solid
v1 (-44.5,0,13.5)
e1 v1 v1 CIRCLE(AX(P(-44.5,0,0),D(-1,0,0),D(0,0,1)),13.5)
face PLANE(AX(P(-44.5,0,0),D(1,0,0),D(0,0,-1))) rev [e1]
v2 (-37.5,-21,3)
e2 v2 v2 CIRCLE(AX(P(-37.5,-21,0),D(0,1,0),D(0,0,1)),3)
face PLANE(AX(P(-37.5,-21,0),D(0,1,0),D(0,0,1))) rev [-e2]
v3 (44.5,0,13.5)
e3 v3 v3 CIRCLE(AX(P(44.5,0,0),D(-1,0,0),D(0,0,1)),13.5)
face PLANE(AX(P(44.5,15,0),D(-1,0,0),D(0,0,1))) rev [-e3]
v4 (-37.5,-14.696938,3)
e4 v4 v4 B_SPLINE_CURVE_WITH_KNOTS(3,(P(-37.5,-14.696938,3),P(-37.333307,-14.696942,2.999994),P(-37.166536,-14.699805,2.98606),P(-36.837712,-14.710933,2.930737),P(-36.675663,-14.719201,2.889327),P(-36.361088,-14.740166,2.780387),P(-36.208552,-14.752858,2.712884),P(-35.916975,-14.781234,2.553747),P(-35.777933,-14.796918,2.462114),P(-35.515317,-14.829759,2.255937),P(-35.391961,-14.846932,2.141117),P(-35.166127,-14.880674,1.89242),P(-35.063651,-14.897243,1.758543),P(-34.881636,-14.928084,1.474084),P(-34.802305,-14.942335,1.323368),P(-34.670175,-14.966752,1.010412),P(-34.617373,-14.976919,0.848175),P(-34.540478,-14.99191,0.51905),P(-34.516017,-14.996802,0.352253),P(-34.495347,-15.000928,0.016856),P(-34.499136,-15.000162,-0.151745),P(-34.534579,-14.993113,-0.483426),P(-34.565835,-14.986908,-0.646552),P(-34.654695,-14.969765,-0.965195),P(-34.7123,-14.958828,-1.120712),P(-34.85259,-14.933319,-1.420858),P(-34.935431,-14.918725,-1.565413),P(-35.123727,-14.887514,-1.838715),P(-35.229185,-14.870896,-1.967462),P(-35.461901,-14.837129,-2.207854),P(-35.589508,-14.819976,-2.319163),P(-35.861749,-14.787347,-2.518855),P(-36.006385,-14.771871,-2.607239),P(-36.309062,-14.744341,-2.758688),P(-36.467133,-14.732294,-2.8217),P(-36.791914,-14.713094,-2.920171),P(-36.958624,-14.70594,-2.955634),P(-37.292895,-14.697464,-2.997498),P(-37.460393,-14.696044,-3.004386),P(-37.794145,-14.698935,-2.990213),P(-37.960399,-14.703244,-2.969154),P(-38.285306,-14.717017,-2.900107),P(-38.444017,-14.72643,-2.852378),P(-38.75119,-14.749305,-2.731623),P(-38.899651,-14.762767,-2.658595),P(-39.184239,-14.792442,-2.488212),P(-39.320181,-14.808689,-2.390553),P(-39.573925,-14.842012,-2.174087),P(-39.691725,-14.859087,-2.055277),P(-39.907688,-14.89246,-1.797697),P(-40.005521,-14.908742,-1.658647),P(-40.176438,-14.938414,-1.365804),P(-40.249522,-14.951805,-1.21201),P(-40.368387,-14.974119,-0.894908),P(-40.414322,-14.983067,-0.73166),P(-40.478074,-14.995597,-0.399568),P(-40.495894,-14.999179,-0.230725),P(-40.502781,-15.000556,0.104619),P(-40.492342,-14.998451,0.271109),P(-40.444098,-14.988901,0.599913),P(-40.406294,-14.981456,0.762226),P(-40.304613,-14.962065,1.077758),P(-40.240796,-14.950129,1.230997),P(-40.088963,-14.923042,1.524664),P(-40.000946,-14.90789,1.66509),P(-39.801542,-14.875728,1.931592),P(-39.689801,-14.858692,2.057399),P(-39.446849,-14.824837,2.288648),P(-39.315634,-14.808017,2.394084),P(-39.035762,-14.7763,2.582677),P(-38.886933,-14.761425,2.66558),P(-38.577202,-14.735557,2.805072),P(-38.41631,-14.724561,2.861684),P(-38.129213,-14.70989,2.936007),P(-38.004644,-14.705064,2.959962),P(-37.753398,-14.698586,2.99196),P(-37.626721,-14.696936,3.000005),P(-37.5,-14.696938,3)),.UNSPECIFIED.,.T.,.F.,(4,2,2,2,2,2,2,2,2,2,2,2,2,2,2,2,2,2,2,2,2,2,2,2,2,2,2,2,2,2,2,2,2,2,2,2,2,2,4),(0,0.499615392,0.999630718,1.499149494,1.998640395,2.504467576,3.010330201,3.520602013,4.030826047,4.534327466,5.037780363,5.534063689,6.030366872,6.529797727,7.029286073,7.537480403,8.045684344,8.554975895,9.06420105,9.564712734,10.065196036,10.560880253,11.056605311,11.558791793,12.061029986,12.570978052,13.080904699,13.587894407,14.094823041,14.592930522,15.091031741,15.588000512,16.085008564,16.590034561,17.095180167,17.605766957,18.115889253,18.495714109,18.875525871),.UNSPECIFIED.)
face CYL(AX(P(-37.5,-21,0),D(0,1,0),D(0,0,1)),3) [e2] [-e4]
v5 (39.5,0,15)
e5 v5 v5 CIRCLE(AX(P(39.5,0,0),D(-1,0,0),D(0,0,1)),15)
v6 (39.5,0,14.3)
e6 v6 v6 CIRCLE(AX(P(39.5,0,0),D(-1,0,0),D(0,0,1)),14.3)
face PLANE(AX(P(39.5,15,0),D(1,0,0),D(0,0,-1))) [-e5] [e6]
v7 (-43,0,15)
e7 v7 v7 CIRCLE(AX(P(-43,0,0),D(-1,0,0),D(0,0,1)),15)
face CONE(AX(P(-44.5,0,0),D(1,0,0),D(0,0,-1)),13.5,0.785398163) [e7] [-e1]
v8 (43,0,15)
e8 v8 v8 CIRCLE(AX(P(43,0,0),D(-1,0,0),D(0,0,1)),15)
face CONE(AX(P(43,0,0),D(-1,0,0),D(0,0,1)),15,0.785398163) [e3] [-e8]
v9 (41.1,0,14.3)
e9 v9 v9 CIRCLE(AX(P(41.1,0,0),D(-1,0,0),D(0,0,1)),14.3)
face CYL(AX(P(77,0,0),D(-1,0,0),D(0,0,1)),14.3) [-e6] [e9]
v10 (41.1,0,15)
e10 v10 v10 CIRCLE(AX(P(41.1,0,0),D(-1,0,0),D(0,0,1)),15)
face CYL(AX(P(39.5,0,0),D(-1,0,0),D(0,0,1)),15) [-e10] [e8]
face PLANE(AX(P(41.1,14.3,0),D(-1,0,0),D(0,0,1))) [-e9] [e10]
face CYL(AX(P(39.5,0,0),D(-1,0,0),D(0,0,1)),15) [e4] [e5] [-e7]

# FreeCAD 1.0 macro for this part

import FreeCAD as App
import Part
import Sketcher
Q = App.Units.Quantity


def add_polygon(sketch, points):
    """Adds a closed chain of lines whose ends are joined by coincident constraints."""
    first, n = sketch.GeometryCount, len(points)
    for a, b in zip(points, points[1:] + points[:1]):
        sketch.addGeometry(Part.LineSegment(App.Vector(*a, 0), App.Vector(*b, 0)), False)
    for i in range(n):
        sketch.addConstraint(Sketcher.Constraint("Coincident", first + i, 2, first + (i + 1) % n, 1))

doc = App.newDocument("Part")
body = doc.addObject("PartDesign::Body", "Body")

# Sketch on XY plane
sketch1 = doc.addObject("Sketcher::SketchObject", "Sketch")
body.addObject(sketch1)
sketch1.AttachmentSupport = (doc.XY_Plane, [""])
sketch1.MapMode = "FlatFace"
add_polygon(sketch1, [(-44, 15), (-44, 0), (40, 0), (40, 15)])  # lines 0-3
sketch1.addConstraint([
    Sketcher.Constraint("Vertical", 0),
    Sketcher.Constraint("Horizontal", 1),
    Sketcher.Constraint("Vertical", 2),
    Sketcher.Constraint("Horizontal", 3),
    Sketcher.Constraint("PointOnObject", 0, 2, -1),
    Sketcher.Constraint("DistanceX", 1, 1, 1, 2, Q("84 mm")),
    Sketcher.Constraint("DistanceY", 0, 2, 0, 1, Q("15 mm")),
    Sketcher.Constraint("DistanceX", 0, 2, -1, 1, Q("44.5 mm")),
])
revolution = doc.addObject("PartDesign::Revolution", "Revolution")
body.addObject(revolution)
revolution.Profile = sketch1
revolution.ReferenceAxis = (sketch1, ["H_Axis"])
revolution.Angle = 360

# Sketch on XY plane
sketch2 = doc.addObject("Sketcher::SketchObject", "Sketch001")
body.addObject(sketch2)
sketch2.AttachmentSupport = (doc.XY_Plane, [""])
sketch2.MapMode = "FlatFace"
add_polygon(sketch2, [(-44.5, 13.5), (-43, 15), (-44.5, 15)])  # lines 0-2
sketch2.addConstraint([
    Sketcher.Constraint("Horizontal", 1),
    Sketcher.Constraint("Vertical", 2),
    Sketcher.Constraint("Equal", 1, 2),
    Sketcher.Constraint("DistanceX", 1, 2, 1, 1, Q("1.5 mm")),
    Sketcher.Constraint("DistanceX", 0, 2, -1, 1, Q("43 mm")),
    Sketcher.Constraint("DistanceY", -1, 1, 0, 2, Q("15 mm")),
])
groove = doc.addObject("PartDesign::Groove", "Groove")
body.addObject(groove)
groove.Profile = sketch2
groove.ReferenceAxis = (sketch2, ["H_Axis"])
groove.Angle = 360

# Sketch on XZ plane
sketch3 = doc.addObject("Sketcher::SketchObject", "Sketch002")
body.addObject(sketch3)
sketch3.AttachmentSupport = (doc.XZ_Plane, [""])
sketch3.MapMode = "FlatFace"
sketch3.addGeometry(Part.Circle(App.Vector(-37.5, 0, 0), App.Vector(0, 0, 1), 3), False)
sketch3.addConstraint([
    Sketcher.Constraint("PointOnObject", 0, 3, -1),
    Sketcher.Constraint("Diameter", 0, Q("6 mm")),
    Sketcher.Constraint("DistanceX", 0, 3, -1, 1, Q("37.5 mm")),
])
pad1 = doc.addObject("PartDesign::Pad", "Pad")
body.addObject(pad1)
pad1.Profile = sketch3
pad1.Length = 21

# Sketch on XY plane
sketch4 = doc.addObject("Sketcher::SketchObject", "Sketch003")
body.addObject(sketch4)
sketch4.AttachmentSupport = (doc.XY_Plane, [""])
sketch4.MapMode = "FlatFace"
add_polygon(sketch4, [(40, 15), (40, 0), (44, 0), (44, 15)])  # lines 0-3
sketch4.addConstraint([
    Sketcher.Constraint("Vertical", 0),
    Sketcher.Constraint("Horizontal", 1),
    Sketcher.Constraint("Vertical", 2),
    Sketcher.Constraint("Horizontal", 3),
    Sketcher.Constraint("PointOnObject", 0, 2, -1),
    Sketcher.Constraint("DistanceX", 1, 1, 1, 2, Q("5 mm")),
    Sketcher.Constraint("DistanceY", 0, 2, 0, 1, Q("15 mm")),
    Sketcher.Constraint("DistanceX", -1, 1, 0, 2, Q("39.5 mm")),
])
revolution2 = doc.addObject("PartDesign::Revolution", "Revolution001")
body.addObject(revolution2)
revolution2.Profile = sketch4
revolution2.ReferenceAxis = (sketch4, ["H_Axis"])
revolution2.Angle = 360

# Sketch on XY plane
sketch5 = doc.addObject("Sketcher::SketchObject", "Sketch004")
body.addObject(sketch5)
sketch5.AttachmentSupport = (doc.XY_Plane, [""])
sketch5.MapMode = "FlatFace"
add_polygon(sketch5, [(39.5, 15), (39.5, 14.3), (41.1, 14.3), (41.1, 15)])  # lines 0-3
sketch5.addConstraint([
    Sketcher.Constraint("Vertical", 0),
    Sketcher.Constraint("Horizontal", 1),
    Sketcher.Constraint("Vertical", 2),
    Sketcher.Constraint("Horizontal", 3),
    Sketcher.Constraint("DistanceX", 1, 1, 1, 2, Q("1.6 mm")),
    Sketcher.Constraint("DistanceY", 0, 2, 0, 1, Q("0.7 mm")),
    Sketcher.Constraint("DistanceY", -1, 1, 2, 2, Q("15 mm")),
    Sketcher.Constraint("DistanceX", -1, 1, 0, 2, Q("39.5 mm")),
])
groove2 = doc.addObject("PartDesign::Groove", "Groove001")
body.addObject(groove2)
groove2.Profile = sketch5
groove2.ReferenceAxis = (sketch5, ["H_Axis"])
groove2.Angle = 360

# Sketch on XY plane
sketch6 = doc.addObject("Sketcher::SketchObject", "Sketch005")
body.addObject(sketch6)
sketch6.AttachmentSupport = (doc.XY_Plane, [""])
sketch6.MapMode = "FlatFace"
add_polygon(sketch6, [(43, 15), (44.5, 13.5), (44.5, 15)])  # lines 0-2
sketch6.addConstraint([
    Sketcher.Constraint("Vertical", 1),
    Sketcher.Constraint("Horizontal", 2),
    Sketcher.Constraint("Equal", 2, 1),
    Sketcher.Constraint("DistanceX", 2, 2, 2, 1, Q("1.5 mm")),
    Sketcher.Constraint("DistanceY", -1, 1, 1, 2, Q("15 mm")),
    Sketcher.Constraint("DistanceX", -1, 1, 2, 2, Q("43 mm")),
])
groove3 = doc.addObject("PartDesign::Groove", "Groove002")
body.addObject(groove3)
groove3.Profile = sketch6
groove3.ReferenceAxis = (sketch6, ["H_Axis"])
groove3.Angle = 360

doc.recompute()
